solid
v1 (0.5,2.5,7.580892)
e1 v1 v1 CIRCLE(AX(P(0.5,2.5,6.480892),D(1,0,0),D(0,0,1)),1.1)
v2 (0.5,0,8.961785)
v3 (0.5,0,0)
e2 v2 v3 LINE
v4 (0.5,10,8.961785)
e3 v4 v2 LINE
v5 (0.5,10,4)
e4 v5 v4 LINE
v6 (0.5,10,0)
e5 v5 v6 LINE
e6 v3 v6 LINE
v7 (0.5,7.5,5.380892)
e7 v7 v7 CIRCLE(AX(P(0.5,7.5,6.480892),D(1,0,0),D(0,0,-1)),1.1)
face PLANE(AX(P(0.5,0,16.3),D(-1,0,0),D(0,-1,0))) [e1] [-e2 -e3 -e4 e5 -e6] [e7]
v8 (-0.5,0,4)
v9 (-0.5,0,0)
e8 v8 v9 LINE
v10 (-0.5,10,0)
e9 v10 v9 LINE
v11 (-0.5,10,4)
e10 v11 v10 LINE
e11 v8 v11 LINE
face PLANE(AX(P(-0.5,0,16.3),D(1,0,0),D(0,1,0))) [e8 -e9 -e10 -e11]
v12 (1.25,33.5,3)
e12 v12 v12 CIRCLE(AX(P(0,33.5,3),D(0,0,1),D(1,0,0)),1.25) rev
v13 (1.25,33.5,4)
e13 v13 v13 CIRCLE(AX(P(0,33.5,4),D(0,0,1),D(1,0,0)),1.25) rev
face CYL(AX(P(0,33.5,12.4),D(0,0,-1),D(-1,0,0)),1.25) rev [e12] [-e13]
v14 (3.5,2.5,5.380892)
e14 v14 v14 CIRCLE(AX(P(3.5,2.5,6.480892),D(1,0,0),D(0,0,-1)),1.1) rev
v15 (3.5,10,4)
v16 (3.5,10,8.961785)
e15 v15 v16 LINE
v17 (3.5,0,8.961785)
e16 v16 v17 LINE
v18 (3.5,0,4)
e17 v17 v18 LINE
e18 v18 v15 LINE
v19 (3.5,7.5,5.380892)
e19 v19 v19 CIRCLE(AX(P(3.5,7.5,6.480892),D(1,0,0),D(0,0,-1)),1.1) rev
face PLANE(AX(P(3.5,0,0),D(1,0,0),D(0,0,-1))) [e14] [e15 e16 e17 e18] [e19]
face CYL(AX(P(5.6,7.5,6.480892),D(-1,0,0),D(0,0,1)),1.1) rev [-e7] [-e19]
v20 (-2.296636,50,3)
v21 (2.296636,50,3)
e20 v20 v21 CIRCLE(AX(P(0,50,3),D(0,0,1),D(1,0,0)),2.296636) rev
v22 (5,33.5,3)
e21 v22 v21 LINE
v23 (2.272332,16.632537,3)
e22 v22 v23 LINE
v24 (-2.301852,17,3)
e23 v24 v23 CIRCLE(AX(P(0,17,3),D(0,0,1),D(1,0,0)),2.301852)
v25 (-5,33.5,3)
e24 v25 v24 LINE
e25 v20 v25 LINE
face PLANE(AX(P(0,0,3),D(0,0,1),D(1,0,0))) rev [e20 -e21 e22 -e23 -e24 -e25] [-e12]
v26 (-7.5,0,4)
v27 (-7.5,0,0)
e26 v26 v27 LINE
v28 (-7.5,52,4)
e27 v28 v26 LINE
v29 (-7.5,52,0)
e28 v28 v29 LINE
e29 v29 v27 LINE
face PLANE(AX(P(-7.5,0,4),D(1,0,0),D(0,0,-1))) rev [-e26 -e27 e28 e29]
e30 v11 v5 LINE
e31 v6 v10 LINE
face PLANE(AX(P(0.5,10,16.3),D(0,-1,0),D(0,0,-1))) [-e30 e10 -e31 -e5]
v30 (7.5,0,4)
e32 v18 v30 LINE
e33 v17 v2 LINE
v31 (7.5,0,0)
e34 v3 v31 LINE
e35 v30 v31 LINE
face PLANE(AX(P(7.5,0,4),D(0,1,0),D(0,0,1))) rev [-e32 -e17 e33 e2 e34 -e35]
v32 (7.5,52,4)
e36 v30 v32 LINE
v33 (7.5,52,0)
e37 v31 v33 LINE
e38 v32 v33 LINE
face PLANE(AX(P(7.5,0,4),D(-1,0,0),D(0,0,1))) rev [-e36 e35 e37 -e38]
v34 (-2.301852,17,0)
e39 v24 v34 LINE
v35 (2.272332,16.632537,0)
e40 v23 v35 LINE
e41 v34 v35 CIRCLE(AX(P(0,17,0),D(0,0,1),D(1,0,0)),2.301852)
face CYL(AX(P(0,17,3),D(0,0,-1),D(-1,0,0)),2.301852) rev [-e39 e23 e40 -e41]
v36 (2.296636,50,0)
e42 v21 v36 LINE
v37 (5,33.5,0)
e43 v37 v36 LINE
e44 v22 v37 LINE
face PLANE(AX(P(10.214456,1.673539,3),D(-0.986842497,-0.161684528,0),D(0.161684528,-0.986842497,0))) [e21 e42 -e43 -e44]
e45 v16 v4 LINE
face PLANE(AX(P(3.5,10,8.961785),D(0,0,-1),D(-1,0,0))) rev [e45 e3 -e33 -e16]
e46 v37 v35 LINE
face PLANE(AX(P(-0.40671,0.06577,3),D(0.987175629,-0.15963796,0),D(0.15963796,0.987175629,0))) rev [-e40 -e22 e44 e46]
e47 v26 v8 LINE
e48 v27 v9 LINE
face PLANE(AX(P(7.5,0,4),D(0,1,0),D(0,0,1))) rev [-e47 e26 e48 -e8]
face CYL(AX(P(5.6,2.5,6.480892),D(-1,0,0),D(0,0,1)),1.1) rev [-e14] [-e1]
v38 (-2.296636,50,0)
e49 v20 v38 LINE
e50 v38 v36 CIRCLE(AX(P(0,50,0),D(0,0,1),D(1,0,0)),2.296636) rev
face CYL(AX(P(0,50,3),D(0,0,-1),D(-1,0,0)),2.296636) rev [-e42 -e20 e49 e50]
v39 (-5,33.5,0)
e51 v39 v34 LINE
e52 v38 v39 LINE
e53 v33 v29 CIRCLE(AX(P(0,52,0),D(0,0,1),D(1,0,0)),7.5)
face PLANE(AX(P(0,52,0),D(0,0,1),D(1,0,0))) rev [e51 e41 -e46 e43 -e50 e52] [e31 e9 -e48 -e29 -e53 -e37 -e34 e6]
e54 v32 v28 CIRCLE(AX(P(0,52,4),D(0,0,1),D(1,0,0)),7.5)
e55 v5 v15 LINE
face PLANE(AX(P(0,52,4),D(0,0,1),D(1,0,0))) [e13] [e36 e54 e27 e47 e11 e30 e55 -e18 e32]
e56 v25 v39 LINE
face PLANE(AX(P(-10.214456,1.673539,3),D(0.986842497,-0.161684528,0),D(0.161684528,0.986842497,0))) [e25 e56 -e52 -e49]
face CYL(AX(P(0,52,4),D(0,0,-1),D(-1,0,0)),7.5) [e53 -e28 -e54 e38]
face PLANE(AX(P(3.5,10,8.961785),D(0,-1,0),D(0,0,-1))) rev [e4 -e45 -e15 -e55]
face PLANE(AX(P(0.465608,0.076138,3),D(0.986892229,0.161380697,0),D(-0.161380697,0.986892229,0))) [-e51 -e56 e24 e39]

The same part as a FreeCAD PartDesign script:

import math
import FreeCAD as App
import Part
import Sketcher
Q = App.Units.Quantity


def add_polygon(sketch, points):
    """Adds a closed chain of lines whose ends are joined by coincident constraints."""
    first, n = sketch.GeometryCount, len(points)
    for a, b in zip(points, points[1:] + points[:1]):
        sketch.addGeometry(Part.LineSegment(App.Vector(*a, 0), App.Vector(*b, 0)), False)
    for i in range(n):
        sketch.addConstraint(Sketcher.Constraint("Coincident", first + i, 2, first + (i + 1) % n, 1))

doc = App.newDocument("Part")
params = doc.addObject("Spreadsheet::Sheet", "Params")
for row, (alias, value) in enumerate([
    ("sketch1_radius", "7.5 mm"),
    ("sketch1_height", "52 mm"),
    ("pad1_length", "4 mm"),
    ("pocket1_length", "3 mm"),
    ("sketch3_diameter", "2.5 mm"),
    ("pocket2_length", "12.4 mm"),
    ("sketch4_width", "1 mm"),
    ("sketch4_height", "10 mm"),
    ("pocket3_length", "16.3 mm"),
    ("sketch5_width", "10 mm"),
    ("sketch5_height", "5 mm"),
    ("pad2_length", "3 mm"),
    ("sketch6_diameter", "2.2 mm"),
    ("pocket4_length", "5.1 mm"),
], start=1):
    params.set(f"A{row}", alias)
    params.set(f"B{row}", "=" + value)
    params.setAlias(f"B{row}", alias)

body = doc.addObject("PartDesign::Body", "Body")

sketch1 = body.newObject("Sketcher::SketchObject", "Sketch")
sketch1.AttachmentSupport = (doc.getObject("XY_Plane"), [""])
sketch1.MapMode = "FlatFace"
sketch1.addGeometry(Part.LineSegment(App.Vector(7.5, 0, 0), App.Vector(7.5, 52, 0)), False)
sketch1.addGeometry(Part.ArcOfCircle(Part.Circle(App.Vector(0, 52, 0), App.Vector(0, 0, 1), 7.5), math.radians(0), math.radians(180)), False)
sketch1.addGeometry(Part.LineSegment(App.Vector(-7.5, 52, 0), App.Vector(-7.5, 0, 0)), False)
sketch1.addGeometry(Part.LineSegment(App.Vector(-7.5, 0, 0), App.Vector(7.5, 0, 0)), False)
sketch1.addConstraint(Sketcher.Constraint("Tangent", 0, 2, 1, 1))
sketch1.addConstraint(Sketcher.Constraint("Tangent", 1, 2, 2, 1))
sketch1.addConstraint(Sketcher.Constraint("Coincident", 2, 2, 3, 1))
sketch1.addConstraint(Sketcher.Constraint("Coincident", 3, 2, 0, 1))
sketch1.addConstraint(Sketcher.Constraint("Vertical", 0))
sketch1.addConstraint(Sketcher.Constraint("Vertical", 2))
sketch1.addConstraint(Sketcher.Constraint("Horizontal", 3))
sketch1.addConstraint(Sketcher.Constraint("Symmetric", 2, 2, 3, 2, -1, 1))
sketch1.addConstraint(Sketcher.Constraint("Radius", 1, Q("7.5 mm")))
sketch1.addConstraint(Sketcher.Constraint("DistanceY", 0, 1, 0, 2, Q("52 mm")))
sketch1.setExpression("Constraints[8]", "Params.sketch1_radius")
sketch1.setExpression("Constraints[9]", "Params.sketch1_height")
pad1 = body.newObject("PartDesign::Pad", "Pad")
pad1.Profile = sketch1
pad1.setExpression("Length", "Params.pad1_length")

sketch2 = body.newObject("Sketcher::SketchObject", "Sketch001")
sketch2.AttachmentSupport = (doc.getObject("XY_Plane"), [""])
sketch2.MapMode = "FlatFace"
sketch2.addGeometry(Part.ArcOfCircle(Part.Circle(App.Vector(0, 50, 0), App.Vector(0, 0, 1), 2.296636), math.radians(0), math.radians(180)), False)
sketch2.addGeometry(Part.LineSegment(App.Vector(-2.296636, 50, 0), App.Vector(-5, 33.5, 0)), False)
sketch2.addGeometry(Part.LineSegment(App.Vector(-5, 33.5, 0), App.Vector(-2.301852, 17, 0)), False)
sketch2.addGeometry(Part.ArcOfCircle(Part.Circle(App.Vector(0, 17, 0), App.Vector(0, 0, 1), 2.301852), math.radians(180), math.radians(350.814117)), False)
sketch2.addGeometry(Part.LineSegment(App.Vector(2.272332, 16.632537, 0), App.Vector(5, 33.5, 0)), False)
sketch2.addGeometry(Part.LineSegment(App.Vector(5, 33.5, 0), App.Vector(2.296636, 50, 0)), False)
sketch2.addConstraint(Sketcher.Constraint("Coincident", 0, 2, 1, 1))
sketch2.addConstraint(Sketcher.Constraint("Coincident", 1, 2, 2, 1))
sketch2.addConstraint(Sketcher.Constraint("Coincident", 2, 2, 3, 1))
sketch2.addConstraint(Sketcher.Constraint("Tangent", 3, 2, 4, 1))
sketch2.addConstraint(Sketcher.Constraint("Coincident", 4, 2, 5, 1))
sketch2.addConstraint(Sketcher.Constraint("Coincident", 5, 2, 0, 1))
sketch2.addConstraint(Sketcher.Constraint("Symmetric", 1, 2, 4, 2, -2))
sketch2.addConstraint(Sketcher.Constraint("Symmetric", 0, 2, 5, 2, -2))
sketch2.addConstraint(Sketcher.Constraint("PointOnObject", 3, 3, -2))
sketch2.addConstraint(Sketcher.Constraint("Horizontal", 3, 3, 2, 2))
sketch2.addConstraint(Sketcher.Constraint("DistanceY", -1, 1, 0, 3, Q("50 mm")))
sketch2.addConstraint(Sketcher.Constraint("DistanceY", -1, 1, 3, 3, Q("17 mm")))
sketch2.addConstraint(Sketcher.Constraint("DistanceY", -1, 1, 0, 2, Q("50 mm")))
sketch2.addConstraint(Sketcher.Constraint("DistanceX", 1, 2, -1, 1, Q("5 mm")))
sketch2.addConstraint(Sketcher.Constraint("DistanceY", -1, 1, 1, 2, Q("33.5 mm")))
sketch2.addConstraint(Sketcher.Constraint("Radius", 3, Q("2.301852 mm")))
sketch2.addConstraint(Sketcher.Constraint("Radius", 0, Q("2.296636 mm")))
pocket1 = body.newObject("PartDesign::Pocket", "Pocket")
pocket1.Profile = sketch2
pocket1.setExpression("Length", "Params.pocket1_length")
pocket1.Reversed = True

sketch3 = body.newObject("Sketcher::SketchObject", "Sketch002")
sketch3.AttachmentSupport = (doc.getObject("XY_Plane"), [""])
sketch3.MapMode = "FlatFace"
sketch3.addGeometry(Part.Circle(App.Vector(0, 33.5, 0), App.Vector(0, 0, 1), 1.25), False)
sketch3.addConstraint(Sketcher.Constraint("PointOnObject", 0, 3, -2))
sketch3.addConstraint(Sketcher.Constraint("Diameter", 0, Q("2.5 mm")))
sketch3.addConstraint(Sketcher.Constraint("DistanceY", -1, 1, 0, 3, Q("33.5 mm")))
sketch3.setExpression("Constraints[1]", "Params.sketch3_diameter")
pocket2 = body.newObject("PartDesign::Pocket", "Pocket001")
pocket2.Profile = sketch3
pocket2.setExpression("Length", "Params.pocket2_length")
pocket2.Reversed = True

sketch4 = body.newObject("Sketcher::SketchObject", "Sketch003")
sketch4.AttachmentSupport = (doc.getObject("XY_Plane"), [""])
sketch4.MapMode = "FlatFace"
add_polygon(sketch4, [(-0.5, 10), (-0.5, 0), (0.5, 0), (0.5, 10)])
sketch4.addConstraint(Sketcher.Constraint("Vertical", 0))
sketch4.addConstraint(Sketcher.Constraint("Horizontal", 1))
sketch4.addConstraint(Sketcher.Constraint("Vertical", 2))
sketch4.addConstraint(Sketcher.Constraint("Horizontal", 3))
sketch4.addConstraint(Sketcher.Constraint("Symmetric", 0, 2, 1, 2, -1, 1))
sketch4.addConstraint(Sketcher.Constraint("DistanceX", 1, 1, 1, 2, Q("1 mm")))
sketch4.addConstraint(Sketcher.Constraint("DistanceY", 0, 2, 0, 1, Q("10 mm")))
sketch4.setExpression("Constraints[9]", "Params.sketch4_width")
sketch4.setExpression("Constraints[10]", "Params.sketch4_height")
pocket3 = body.newObject("PartDesign::Pocket", "Pocket002")
pocket3.Profile = sketch4
pocket3.setExpression("Length", "Params.pocket3_length")
pocket3.Reversed = True

sketch5 = body.newObject("Sketcher::SketchObject", "Sketch004")
sketch5.AttachmentSupport = (doc.getObject("YZ_Plane"), [""])
sketch5.MapMode = "FlatFace"
sketch5.AttachmentOffset = App.Placement(App.Vector(0, 0, 0.5), App.Rotation())
add_polygon(sketch5, [(10, 8.961785), (0, 8.961785), (0, 3.961785), (10, 3.961785)])
sketch5.addConstraint(Sketcher.Constraint("Horizontal", 0))
sketch5.addConstraint(Sketcher.Constraint("Vertical", 1))
sketch5.addConstraint(Sketcher.Constraint("Horizontal", 2))
sketch5.addConstraint(Sketcher.Constraint("Vertical", 3))
sketch5.addConstraint(Sketcher.Constraint("PointOnObject", 0, 2, -2))
sketch5.addConstraint(Sketcher.Constraint("DistanceX", 0, 2, 0, 1, Q("10 mm")))
sketch5.addConstraint(Sketcher.Constraint("DistanceY", 1, 2, 1, 1, Q("5 mm")))
sketch5.addConstraint(Sketcher.Constraint("DistanceY", -1, 1, 0, 2, Q("8.961785 mm")))
sketch5.setExpression("Constraints[9]", "Params.sketch5_width")
sketch5.setExpression("Constraints[10]", "Params.sketch5_height")
pad2 = body.newObject("PartDesign::Pad", "Pad001")
pad2.Profile = sketch5
pad2.setExpression("Length", "Params.pad2_length")

sketch6 = body.newObject("Sketcher::SketchObject", "Sketch005")
sketch6.AttachmentSupport = (doc.getObject("YZ_Plane"), [""])
sketch6.MapMode = "FlatFace"
sketch6.AttachmentOffset = App.Placement(App.Vector(0, 0, 0.5), App.Rotation())
sketch6.addGeometry(Part.Circle(App.Vector(7.5, 6.480892, 0), App.Vector(0, 0, 1), 1.1), False)
sketch6.addGeometry(Part.Circle(App.Vector(2.5, 6.480892, 0), App.Vector(0, 0, 1), 1.1), False)
sketch6.addConstraint(Sketcher.Constraint("Equal", 0, 1))
sketch6.addConstraint(Sketcher.Constraint("Horizontal", 0, 3, 1, 3))
sketch6.addConstraint(Sketcher.Constraint("Diameter", 0, Q("2.2 mm")))
sketch6.addConstraint(Sketcher.Constraint("DistanceX", 1, 3, 0, 3, Q("5 mm")))
sketch6.addConstraint(Sketcher.Constraint("DistanceX", -1, 1, 0, 3, Q("7.5 mm")))
sketch6.addConstraint(Sketcher.Constraint("DistanceY", -1, 1, 0, 3, Q("6.480892 mm")))
sketch6.setExpression("Constraints[2]", "Params.sketch6_diameter")
pocket4 = body.newObject("PartDesign::Pocket", "Pocket003")
pocket4.Profile = sketch6
pocket4.setExpression("Length", "Params.pocket4_length")
pocket4.Reversed = True

doc.recompute()
